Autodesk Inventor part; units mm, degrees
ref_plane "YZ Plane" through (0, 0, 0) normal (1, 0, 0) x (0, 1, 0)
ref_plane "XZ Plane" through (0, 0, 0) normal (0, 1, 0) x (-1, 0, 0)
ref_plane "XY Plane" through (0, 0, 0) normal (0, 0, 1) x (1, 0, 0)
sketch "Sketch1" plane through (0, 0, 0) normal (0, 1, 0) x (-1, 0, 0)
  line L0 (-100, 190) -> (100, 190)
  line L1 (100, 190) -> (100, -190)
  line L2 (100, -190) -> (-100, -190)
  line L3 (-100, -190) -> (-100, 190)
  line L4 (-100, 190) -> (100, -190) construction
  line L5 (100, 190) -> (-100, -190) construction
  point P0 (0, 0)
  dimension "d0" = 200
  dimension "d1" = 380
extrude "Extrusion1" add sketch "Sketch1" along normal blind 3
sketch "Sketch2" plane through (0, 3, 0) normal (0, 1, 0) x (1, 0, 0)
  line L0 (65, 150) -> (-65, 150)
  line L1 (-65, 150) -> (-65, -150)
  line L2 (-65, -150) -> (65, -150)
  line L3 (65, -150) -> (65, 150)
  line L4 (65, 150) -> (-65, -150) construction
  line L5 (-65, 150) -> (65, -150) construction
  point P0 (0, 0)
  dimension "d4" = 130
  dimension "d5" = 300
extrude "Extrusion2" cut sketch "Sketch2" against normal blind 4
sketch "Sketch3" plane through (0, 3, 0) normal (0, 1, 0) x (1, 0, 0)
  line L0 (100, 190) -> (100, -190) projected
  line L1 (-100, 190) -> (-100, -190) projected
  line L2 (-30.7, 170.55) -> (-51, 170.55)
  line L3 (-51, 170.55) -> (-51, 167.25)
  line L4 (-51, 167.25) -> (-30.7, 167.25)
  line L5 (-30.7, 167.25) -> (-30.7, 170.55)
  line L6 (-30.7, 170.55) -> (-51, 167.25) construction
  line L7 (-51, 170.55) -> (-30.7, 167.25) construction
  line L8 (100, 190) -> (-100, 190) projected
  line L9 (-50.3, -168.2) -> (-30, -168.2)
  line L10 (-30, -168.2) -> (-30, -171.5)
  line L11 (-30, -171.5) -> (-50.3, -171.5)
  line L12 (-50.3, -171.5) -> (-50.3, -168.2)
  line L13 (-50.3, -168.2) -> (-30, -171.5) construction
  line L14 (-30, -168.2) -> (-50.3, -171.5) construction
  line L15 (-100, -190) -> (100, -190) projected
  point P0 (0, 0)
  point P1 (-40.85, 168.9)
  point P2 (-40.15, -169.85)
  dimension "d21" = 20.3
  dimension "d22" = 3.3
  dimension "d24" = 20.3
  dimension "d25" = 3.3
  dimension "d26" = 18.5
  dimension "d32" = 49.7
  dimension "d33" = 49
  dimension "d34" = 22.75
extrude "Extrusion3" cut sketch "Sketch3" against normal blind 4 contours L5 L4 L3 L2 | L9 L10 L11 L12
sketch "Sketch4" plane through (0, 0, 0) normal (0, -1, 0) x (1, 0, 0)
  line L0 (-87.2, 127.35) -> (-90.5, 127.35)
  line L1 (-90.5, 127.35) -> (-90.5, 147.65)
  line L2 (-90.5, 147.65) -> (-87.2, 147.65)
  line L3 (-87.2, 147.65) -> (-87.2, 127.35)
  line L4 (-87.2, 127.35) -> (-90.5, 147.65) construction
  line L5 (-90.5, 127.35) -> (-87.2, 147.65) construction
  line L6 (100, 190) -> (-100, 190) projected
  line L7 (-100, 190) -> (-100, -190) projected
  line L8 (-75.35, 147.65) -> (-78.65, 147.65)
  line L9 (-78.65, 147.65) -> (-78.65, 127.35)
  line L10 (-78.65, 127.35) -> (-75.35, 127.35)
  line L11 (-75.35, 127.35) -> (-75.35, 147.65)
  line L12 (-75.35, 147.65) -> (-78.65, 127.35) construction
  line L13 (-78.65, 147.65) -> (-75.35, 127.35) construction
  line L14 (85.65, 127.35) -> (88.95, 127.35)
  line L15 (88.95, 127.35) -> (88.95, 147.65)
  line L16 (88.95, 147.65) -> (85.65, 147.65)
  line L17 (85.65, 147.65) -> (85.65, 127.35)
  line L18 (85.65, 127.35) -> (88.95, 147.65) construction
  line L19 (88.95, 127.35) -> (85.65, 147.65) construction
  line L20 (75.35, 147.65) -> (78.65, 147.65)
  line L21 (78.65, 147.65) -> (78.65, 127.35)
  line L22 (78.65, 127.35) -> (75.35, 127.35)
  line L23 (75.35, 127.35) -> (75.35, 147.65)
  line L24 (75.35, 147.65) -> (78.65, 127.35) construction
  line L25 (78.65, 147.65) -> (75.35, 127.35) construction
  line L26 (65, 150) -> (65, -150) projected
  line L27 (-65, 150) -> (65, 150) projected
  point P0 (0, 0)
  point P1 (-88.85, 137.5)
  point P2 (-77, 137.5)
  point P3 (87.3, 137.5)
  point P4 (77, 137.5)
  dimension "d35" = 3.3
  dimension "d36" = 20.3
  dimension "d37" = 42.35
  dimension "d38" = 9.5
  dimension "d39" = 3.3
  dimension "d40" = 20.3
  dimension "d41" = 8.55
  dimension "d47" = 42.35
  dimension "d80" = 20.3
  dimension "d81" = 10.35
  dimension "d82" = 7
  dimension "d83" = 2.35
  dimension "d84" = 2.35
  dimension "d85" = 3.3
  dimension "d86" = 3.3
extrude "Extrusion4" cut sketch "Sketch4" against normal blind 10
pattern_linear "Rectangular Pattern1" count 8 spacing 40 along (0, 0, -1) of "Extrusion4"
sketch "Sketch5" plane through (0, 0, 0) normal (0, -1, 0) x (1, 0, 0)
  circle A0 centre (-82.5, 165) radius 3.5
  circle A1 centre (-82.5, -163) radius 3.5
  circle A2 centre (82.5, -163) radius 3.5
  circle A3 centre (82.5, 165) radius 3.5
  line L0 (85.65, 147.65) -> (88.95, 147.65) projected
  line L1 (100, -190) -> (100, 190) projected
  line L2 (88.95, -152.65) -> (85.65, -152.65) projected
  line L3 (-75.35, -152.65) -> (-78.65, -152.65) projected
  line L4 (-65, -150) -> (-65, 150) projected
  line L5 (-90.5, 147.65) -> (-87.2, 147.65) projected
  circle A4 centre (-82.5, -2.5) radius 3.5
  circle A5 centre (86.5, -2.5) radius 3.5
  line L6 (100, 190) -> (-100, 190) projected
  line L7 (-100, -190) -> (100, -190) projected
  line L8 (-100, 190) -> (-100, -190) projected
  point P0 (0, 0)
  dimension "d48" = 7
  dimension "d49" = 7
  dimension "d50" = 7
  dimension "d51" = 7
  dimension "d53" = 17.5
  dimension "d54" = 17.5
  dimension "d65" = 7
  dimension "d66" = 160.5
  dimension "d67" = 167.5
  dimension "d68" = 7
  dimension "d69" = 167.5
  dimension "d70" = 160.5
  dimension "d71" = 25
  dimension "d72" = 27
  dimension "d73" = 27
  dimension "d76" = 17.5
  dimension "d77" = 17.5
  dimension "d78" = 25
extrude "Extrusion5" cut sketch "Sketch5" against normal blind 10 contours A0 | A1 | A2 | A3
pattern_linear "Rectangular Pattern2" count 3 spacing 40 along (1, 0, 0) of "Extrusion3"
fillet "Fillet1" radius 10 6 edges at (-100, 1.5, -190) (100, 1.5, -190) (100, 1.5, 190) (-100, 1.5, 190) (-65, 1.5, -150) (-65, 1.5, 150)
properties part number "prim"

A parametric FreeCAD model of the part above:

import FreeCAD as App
import Part
import Sketcher


def edges_at(feature, points):
    """Names of the edges that pass closest to the given points."""
    edges = feature.Shape.Edges
    near = lambda p: min(range(len(edges)), key=lambda i: edges[i].distToShape(Part.Vertex(*p))[0])
    return sorted({f"Edge{near(p) + 1}" for p in points})

doc = App.newDocument("Part")
params = doc.addObject("Spreadsheet::Sheet", "Params")
for row, (alias, value) in enumerate([
    ("sketch1_width", "200 mm"),
    ("sketch1_height", "380 mm"),
    ("pad1_length", "3 mm"),
    ("sketch2_width", "130 mm"),
    ("sketch2_height", "300 mm"),
    ("pocket1_length", "4 mm"),
    ("sketch3_width", "20.3 mm"),
    ("sketch3_height", "3.3 mm"),
    ("pocket2_length", "4 mm"),
    ("sketch4_width", "3.3 mm"),
    ("sketch4_height", "20.3 mm"),
    ("pocket3_length", "10 mm"),
    ("linearpattern_pitch", "40 mm"),
    ("sketch5_diameter", "7 mm"),
    ("pocket4_length", "10 mm"),
    ("linearpattern2_pitch", "40 mm"),
    ("fillet_radius", "10 mm"),
], start=1):
    params.set(f"A{row}", alias)
    params.set(f"B{row}", "=" + value)
    params.setAlias(f"B{row}", alias)

body = doc.addObject("PartDesign::Body", "Body")

sketch1 = doc.addObject("Sketcher::SketchObject", "Sketch")
body.addObject(sketch1)
sketch1.AttachmentSupport = (doc.XZ_Plane, [""])
sketch1.MapMode = "FlatFace"
sketch1.addGeometry(Part.LineSegment(App.Vector(-100, 190, 0), App.Vector(100, 190, 0)), False)
sketch1.addGeometry(Part.LineSegment(App.Vector(100, 190, 0), App.Vector(100, -190, 0)), False)
sketch1.addGeometry(Part.LineSegment(App.Vector(100, -190, 0), App.Vector(-100, -190, 0)), False)
sketch1.addGeometry(Part.LineSegment(App.Vector(-100, -190, 0), App.Vector(-100, 190, 0)), False)
sketch1.addConstraint(Sketcher.Constraint("Coincident", 0, 2, 1, 1))
sketch1.addConstraint(Sketcher.Constraint("Coincident", 1, 2, 2, 1))
sketch1.addConstraint(Sketcher.Constraint("Coincident", 2, 2, 3, 1))
sketch1.addConstraint(Sketcher.Constraint("Coincident", 3, 2, 0, 1))
sketch1.addConstraint(Sketcher.Constraint("Horizontal", 0))
sketch1.addConstraint(Sketcher.Constraint("Vertical", 1))
sketch1.addConstraint(Sketcher.Constraint("Horizontal", 2))
sketch1.addConstraint(Sketcher.Constraint("Vertical", 3))
sketch1.addConstraint(Sketcher.Constraint("Symmetric", 0, 2, 2, 2, -1, 1))
sketch1.addConstraint(Sketcher.Constraint("DistanceX", 0, 1, 0, 2, 200.0))
sketch1.addConstraint(Sketcher.Constraint("DistanceY", 1, 2, 1, 1, 380.0))
sketch1.setExpression("Constraints[9]", "Params.sketch1_width")
sketch1.setExpression("Constraints[10]", "Params.sketch1_height")
pad1 = doc.addObject("PartDesign::Pad", "Pad")
body.addObject(pad1)
pad1.Profile = sketch1
pad1.setExpression("Length", "Params.pad1_length")
pad1.Reversed = True

sketch2 = doc.addObject("Sketcher::SketchObject", "Sketch001")
body.addObject(sketch2)
sketch2.AttachmentSupport = (doc.XZ_Plane, [""])
sketch2.MapMode = "FlatFace"
sketch2.AttachmentOffset = App.Placement(App.Vector(0, 0, -3), App.Rotation())
sketch2.addGeometry(Part.LineSegment(App.Vector(65, 150, 0), App.Vector(65, -150, 0)), False)
sketch2.addGeometry(Part.LineSegment(App.Vector(65, -150, 0), App.Vector(-65, -150, 0)), False)
sketch2.addGeometry(Part.LineSegment(App.Vector(-65, -150, 0), App.Vector(-65, 150, 0)), False)
sketch2.addGeometry(Part.LineSegment(App.Vector(-65, 150, 0), App.Vector(65, 150, 0)), False)
sketch2.addConstraint(Sketcher.Constraint("Coincident", 0, 2, 1, 1))
sketch2.addConstraint(Sketcher.Constraint("Coincident", 1, 2, 2, 1))
sketch2.addConstraint(Sketcher.Constraint("Coincident", 2, 2, 3, 1))
sketch2.addConstraint(Sketcher.Constraint("Coincident", 3, 2, 0, 1))
sketch2.addConstraint(Sketcher.Constraint("Vertical", 0))
sketch2.addConstraint(Sketcher.Constraint("Horizontal", 1))
sketch2.addConstraint(Sketcher.Constraint("Vertical", 2))
sketch2.addConstraint(Sketcher.Constraint("Horizontal", 3))
sketch2.addConstraint(Sketcher.Constraint("Symmetric", 0, 2, 2, 2, -1, 1))
sketch2.addConstraint(Sketcher.Constraint("DistanceX", 1, 2, 1, 1, 130.0))
sketch2.addConstraint(Sketcher.Constraint("DistanceY", 0, 2, 0, 1, 300.0))
sketch2.setExpression("Constraints[9]", "Params.sketch2_width")
sketch2.setExpression("Constraints[10]", "Params.sketch2_height")
pocket1 = doc.addObject("PartDesign::Pocket", "Pocket")
body.addObject(pocket1)
pocket1.Profile = sketch2
pocket1.setExpression("Length", "Params.pocket1_length")
pocket1.Reversed = True

sketch3 = doc.addObject("Sketcher::SketchObject", "Sketch002")
body.addObject(sketch3)
sketch3.AttachmentSupport = (doc.XZ_Plane, [""])
sketch3.MapMode = "FlatFace"
sketch3.AttachmentOffset = App.Placement(App.Vector(0, 0, -3), App.Rotation())
sketch3.addGeometry(Part.LineSegment(App.Vector(-30.7, -167.2, 0), App.Vector(-30.7, -170.6, 0)), False)
sketch3.addGeometry(Part.LineSegment(App.Vector(-30.7, -170.6, 0), App.Vector(-51, -170.6, 0)), False)
sketch3.addGeometry(Part.LineSegment(App.Vector(-51, -170.6, 0), App.Vector(-51, -167.2, 0)), False)
sketch3.addGeometry(Part.LineSegment(App.Vector(-51, -167.2, 0), App.Vector(-30.7, -167.2, 0)), False)
sketch3.addGeometry(Part.LineSegment(App.Vector(-30, 168.2, 0), App.Vector(-50.3, 168.2, 0)), False)
sketch3.addGeometry(Part.LineSegment(App.Vector(-50.3, 168.2, 0), App.Vector(-50.3, 171.5, 0)), False)
sketch3.addGeometry(Part.LineSegment(App.Vector(-50.3, 171.5, 0), App.Vector(-30, 171.5, 0)), False)
sketch3.addGeometry(Part.LineSegment(App.Vector(-30, 171.5, 0), App.Vector(-30, 168.2, 0)), False)
sketch3.addConstraint(Sketcher.Constraint("Coincident", 0, 2, 1, 1))
sketch3.addConstraint(Sketcher.Constraint("Coincident", 1, 2, 2, 1))
sketch3.addConstraint(Sketcher.Constraint("Coincident", 2, 2, 3, 1))
sketch3.addConstraint(Sketcher.Constraint("Coincident", 3, 2, 0, 1))
sketch3.addConstraint(Sketcher.Constraint("Coincident", 4, 2, 5, 1))
sketch3.addConstraint(Sketcher.Constraint("Coincident", 5, 2, 6, 1))
sketch3.addConstraint(Sketcher.Constraint("Coincident", 6, 2, 7, 1))
sketch3.addConstraint(Sketcher.Constraint("Coincident", 7, 2, 4, 1))
sketch3.addConstraint(Sketcher.Constraint("Vertical", 0))
sketch3.addConstraint(Sketcher.Constraint("Horizontal", 1))
sketch3.addConstraint(Sketcher.Constraint("Vertical", 2))
sketch3.addConstraint(Sketcher.Constraint("Horizontal", 3))
sketch3.addConstraint(Sketcher.Constraint("Horizontal", 4))
sketch3.addConstraint(Sketcher.Constraint("Vertical", 5))
sketch3.addConstraint(Sketcher.Constraint("Horizontal", 6))
sketch3.addConstraint(Sketcher.Constraint("Vertical", 7))
sketch3.addConstraint(Sketcher.Constraint("Equal", 3, 4))
sketch3.addConstraint(Sketcher.Constraint("Equal", 2, 5))
sketch3.addConstraint(Sketcher.Constraint("DistanceX", 1, 2, 1, 1, 20.3))
sketch3.addConstraint(Sketcher.Constraint("DistanceY", 0, 2, 0, 1, 3.3))
sketch3.addConstraint(Sketcher.Constraint("DistanceX", 1, 2, -1, 1, 51.0))
sketch3.addConstraint(Sketcher.Constraint("DistanceX", 6, 2, -1, 1, 30.0))
sketch3.addConstraint(Sketcher.Constraint("DistanceY", -1, 1, 4, 2, 168.2))
sketch3.addConstraint(Sketcher.Constraint("DistanceY", 0, 2, -1, 1, 170.55))
sketch3.setExpression("Constraints[18]", "Params.sketch3_width")
sketch3.setExpression("Constraints[19]", "Params.sketch3_height")
pocket2 = doc.addObject("PartDesign::Pocket", "Pocket001")
body.addObject(pocket2)
pocket2.Profile = sketch3
pocket2.setExpression("Length", "Params.pocket2_length")
pocket2.Reversed = True

sketch4 = doc.addObject("Sketcher::SketchObject", "Sketch003")
body.addObject(sketch4)
sketch4.AttachmentSupport = (doc.XZ_Plane, [""])
sketch4.MapMode = "FlatFace"
sketch4.addGeometry(Part.LineSegment(App.Vector(-90.5, 127.3, 0), App.Vector(-87.2, 127.3, 0)), False)
sketch4.addGeometry(Part.LineSegment(App.Vector(-87.2, 127.3, 0), App.Vector(-87.2, 147.7, 0)), False)
sketch4.addGeometry(Part.LineSegment(App.Vector(-87.2, 147.7, 0), App.Vector(-90.5, 147.7, 0)), False)
sketch4.addGeometry(Part.LineSegment(App.Vector(-90.5, 147.7, 0), App.Vector(-90.5, 127.3, 0)), False)
sketch4.addGeometry(Part.LineSegment(App.Vector(-75.3, 127.3, 0), App.Vector(-75.3, 147.7, 0)), False)
sketch4.addGeometry(Part.LineSegment(App.Vector(-75.3, 147.7, 0), App.Vector(-78.7, 147.7, 0)), False)
sketch4.addGeometry(Part.LineSegment(App.Vector(-78.7, 147.7, 0), App.Vector(-78.7, 127.3, 0)), False)
sketch4.addGeometry(Part.LineSegment(App.Vector(-78.7, 127.3, 0), App.Vector(-75.3, 127.3, 0)), False)
sketch4.addGeometry(Part.LineSegment(App.Vector(85.7, 147.7, 0), App.Vector(85.7, 127.3, 0)), False)
sketch4.addGeometry(Part.LineSegment(App.Vector(85.7, 127.3, 0), App.Vector(89, 127.3, 0)), False)
sketch4.addGeometry(Part.LineSegment(App.Vector(89, 127.3, 0), App.Vector(89, 147.7, 0)), False)
sketch4.addGeometry(Part.LineSegment(App.Vector(89, 147.7, 0), App.Vector(85.7, 147.7, 0)), False)
sketch4.addGeometry(Part.LineSegment(App.Vector(78.7, 147.7, 0), App.Vector(75.3, 147.7, 0)), False)
sketch4.addGeometry(Part.LineSegment(App.Vector(75.3, 147.7, 0), App.Vector(75.3, 127.3, 0)), False)
sketch4.addGeometry(Part.LineSegment(App.Vector(75.3, 127.3, 0), App.Vector(78.7, 127.3, 0)), False)
sketch4.addGeometry(Part.LineSegment(App.Vector(78.7, 127.3, 0), App.Vector(78.7, 147.7, 0)), False)
sketch4.addConstraint(Sketcher.Constraint("Coincident", 0, 2, 1, 1))
sketch4.addConstraint(Sketcher.Constraint("Coincident", 1, 2, 2, 1))
sketch4.addConstraint(Sketcher.Constraint("Coincident", 2, 2, 3, 1))
sketch4.addConstraint(Sketcher.Constraint("Coincident", 3, 2, 0, 1))
sketch4.addConstraint(Sketcher.Constraint("Coincident", 4, 2, 5, 1))
sketch4.addConstraint(Sketcher.Constraint("Coincident", 5, 2, 6, 1))
sketch4.addConstraint(Sketcher.Constraint("Coincident", 6, 2, 7, 1))
sketch4.addConstraint(Sketcher.Constraint("Coincident", 7, 2, 4, 1))
sketch4.addConstraint(Sketcher.Constraint("Coincident", 8, 2, 9, 1))
sketch4.addConstraint(Sketcher.Constraint("Coincident", 9, 2, 10, 1))
sketch4.addConstraint(Sketcher.Constraint("Coincident", 10, 2, 11, 1))
sketch4.addConstraint(Sketcher.Constraint("Coincident", 11, 2, 8, 1))
sketch4.addConstraint(Sketcher.Constraint("Coincident", 12, 2, 13, 1))
sketch4.addConstraint(Sketcher.Constraint("Coincident", 13, 2, 14, 1))
sketch4.addConstraint(Sketcher.Constraint("Coincident", 14, 2, 15, 1))
sketch4.addConstraint(Sketcher.Constraint("Coincident", 15, 2, 12, 1))
sketch4.addConstraint(Sketcher.Constraint("Horizontal", 0))
sketch4.addConstraint(Sketcher.Constraint("Vertical", 1))
sketch4.addConstraint(Sketcher.Constraint("Horizontal", 2))
sketch4.addConstraint(Sketcher.Constraint("Vertical", 3))
sketch4.addConstraint(Sketcher.Constraint("Vertical", 4))
sketch4.addConstraint(Sketcher.Constraint("Horizontal", 5))
sketch4.addConstraint(Sketcher.Constraint("Vertical", 6))
sketch4.addConstraint(Sketcher.Constraint("Horizontal", 7))
sketch4.addConstraint(Sketcher.Constraint("Vertical", 8))
sketch4.addConstraint(Sketcher.Constraint("Horizontal", 9))
sketch4.addConstraint(Sketcher.Constraint("Vertical", 10))
sketch4.addConstraint(Sketcher.Constraint("Horizontal", 11))
sketch4.addConstraint(Sketcher.Constraint("Horizontal", 12))
sketch4.addConstraint(Sketcher.Constraint("Vertical", 13))
sketch4.addConstraint(Sketcher.Constraint("Horizontal", 14))
sketch4.addConstraint(Sketcher.Constraint("Vertical", 15))
sketch4.addConstraint(Sketcher.Constraint("Symmetric", 4, 2, 12, 2, -2))
sketch4.addConstraint(Sketcher.Constraint("Symmetric", 6, 2, 14, 2, -2))
sketch4.addConstraint(Sketcher.Constraint("Horizontal", 2, 2, 4, 2))
sketch4.addConstraint(Sketcher.Constraint("Horizontal", 3, 2, 6, 2))
sketch4.addConstraint(Sketcher.Constraint("Horizontal", 7, 2, 8, 2))
sketch4.addConstraint(Sketcher.Constraint("Horizontal", 5, 2, 10, 2))
sketch4.addConstraint(Sketcher.Constraint("Equal", 2, 5))
sketch4.addConstraint(Sketcher.Constraint("Equal", 7, 9))
sketch4.addConstraint(Sketcher.Constraint("DistanceX", 0, 1, 0, 2, 3.3))
sketch4.addConstraint(Sketcher.Constraint("DistanceY", 1, 1, 1, 2, 20.3))
sketch4.addConstraint(Sketcher.Constraint("DistanceX", 14, 2, 8, 2, 7.0))
sketch4.addConstraint(Sketcher.Constraint("DistanceX", 1, 2, 5, 2, 8.55))
sketch4.addConstraint(Sketcher.Constraint("DistanceX", 7, 2, 8, 2, 161.0))
sketch4.addConstraint(Sketcher.Constraint("DistanceY", -1, 1, 0, 2, 127.35))
sketch4.setExpression("Constraints[40]", "Params.sketch4_width")
sketch4.setExpression("Constraints[41]", "Params.sketch4_height")
pocket3 = doc.addObject("PartDesign::Pocket", "Pocket002")
body.addObject(pocket3)
pocket3.Profile = sketch4
pocket3.setExpression("Length", "Params.pocket3_length")
doc.recompute()

linearpattern = doc.addObject("PartDesign::LinearPattern", "LinearPattern")
body.addObject(linearpattern)
linearpattern.Originals = [pocket3]
linearpattern.Direction = (doc.Z_Axis, [""])
linearpattern.Mode = "offset"
linearpattern.setExpression("Offset", "Params.linearpattern_pitch")
linearpattern.Occurrences = 8
linearpattern.Reversed = True
body.Tip = linearpattern

sketch5 = doc.addObject("Sketcher::SketchObject", "Sketch004")
body.addObject(sketch5)
sketch5.AttachmentSupport = (doc.XZ_Plane, [""])
sketch5.MapMode = "FlatFace"
sketch5.addGeometry(Part.Circle(App.Vector(-82.5, 165, 0), App.Vector(0, 0, 1), 3.5), False)
sketch5.addGeometry(Part.Circle(App.Vector(-82.5, -163, 0), App.Vector(0, 0, 1), 3.5), False)
sketch5.addGeometry(Part.Circle(App.Vector(82.5, -163, 0), App.Vector(0, 0, 1), 3.5), False)
sketch5.addGeometry(Part.Circle(App.Vector(82.5, 165, 0), App.Vector(0, 0, 1), 3.5), False)
sketch5.addConstraint(Sketcher.Constraint("Equal", 0, 1))
sketch5.addConstraint(Sketcher.Constraint("Equal", 1, 2))
sketch5.addConstraint(Sketcher.Constraint("Equal", 2, 3))
sketch5.addConstraint(Sketcher.Constraint("Symmetric", 1, 3, 2, 3, -2))
sketch5.addConstraint(Sketcher.Constraint("Symmetric", 0, 3, 3, 3, -2))
sketch5.addConstraint(Sketcher.Constraint("Vertical", 0, 3, 1, 3))
sketch5.addConstraint(Sketcher.Constraint("Diameter", 0, 7.0))
sketch5.addConstraint(Sketcher.Constraint("DistanceY", -1, 1, 0, 3, 165.0))
sketch5.addConstraint(Sketcher.Constraint("DistanceY", 1, 3, -1, 1, 163.0))
sketch5.addConstraint(Sketcher.Constraint("DistanceX", 1, 3, 2, 3, 165.0))
sketch5.setExpression("Constraints[6]", "Params.sketch5_diameter")
pocket4 = doc.addObject("PartDesign::Pocket", "Pocket003")
body.addObject(pocket4)
pocket4.Profile = sketch5
pocket4.setExpression("Length", "Params.pocket4_length")
doc.recompute()

linearpattern2 = doc.addObject("PartDesign::LinearPattern", "LinearPattern001")
body.addObject(linearpattern2)
linearpattern2.Originals = [pocket2]
linearpattern2.Direction = (doc.X_Axis, [""])
linearpattern2.Mode = "offset"
linearpattern2.setExpression("Offset", "Params.linearpattern2_pitch")
linearpattern2.Occurrences = 3
body.Tip = linearpattern2
doc.recompute()

fillet = doc.addObject("PartDesign::Fillet", "Fillet")
body.addObject(fillet)
fillet.Base = (linearpattern2, edges_at(linearpattern2, [
    (-100, 1.5, -190),
    (100, 1.5, -190),
    (100, 1.5, 190),
    (-100, 1.5, 190),
    (-65, 1.5, -150),
    (-65, 1.5, 150),
]))
fillet.setExpression("Radius", "Params.fillet_radius")

doc.recompute()
